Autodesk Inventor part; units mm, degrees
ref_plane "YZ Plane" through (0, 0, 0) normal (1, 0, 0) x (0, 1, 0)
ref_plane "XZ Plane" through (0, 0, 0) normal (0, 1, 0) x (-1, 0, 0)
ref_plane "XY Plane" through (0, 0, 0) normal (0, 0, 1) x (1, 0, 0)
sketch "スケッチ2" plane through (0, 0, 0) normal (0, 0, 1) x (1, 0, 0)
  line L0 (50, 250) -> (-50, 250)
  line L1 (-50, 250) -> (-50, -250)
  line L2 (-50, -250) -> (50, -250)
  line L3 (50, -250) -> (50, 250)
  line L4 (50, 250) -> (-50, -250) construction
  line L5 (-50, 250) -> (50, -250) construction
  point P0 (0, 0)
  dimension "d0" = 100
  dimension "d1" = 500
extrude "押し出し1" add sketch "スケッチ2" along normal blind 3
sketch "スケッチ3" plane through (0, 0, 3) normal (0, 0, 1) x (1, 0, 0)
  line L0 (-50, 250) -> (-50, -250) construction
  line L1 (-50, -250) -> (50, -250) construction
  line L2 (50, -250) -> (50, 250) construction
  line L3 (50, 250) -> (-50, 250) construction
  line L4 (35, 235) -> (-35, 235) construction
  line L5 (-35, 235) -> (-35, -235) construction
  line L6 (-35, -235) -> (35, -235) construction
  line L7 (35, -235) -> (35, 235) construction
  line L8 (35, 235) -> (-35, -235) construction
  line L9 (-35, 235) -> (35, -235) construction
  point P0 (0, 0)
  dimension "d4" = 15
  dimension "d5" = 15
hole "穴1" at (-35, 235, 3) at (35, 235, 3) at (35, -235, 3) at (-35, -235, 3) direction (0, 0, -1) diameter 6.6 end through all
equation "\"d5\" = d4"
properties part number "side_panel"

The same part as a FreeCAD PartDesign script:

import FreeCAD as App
import Part
import Sketcher
Q = App.Units.Quantity

doc = App.newDocument("Part")
body = doc.addObject("PartDesign::Body", "Body")

sketch1 = doc.addObject("Sketcher::SketchObject", "Sketch")
body.addObject(sketch1)
sketch1.AttachmentSupport = (doc.XY_Plane, [""])
sketch1.MapMode = "FlatFace"
sketch1.addGeometry(Part.LineSegment(App.Vector(50, -250, 0), App.Vector(50, 250, 0)), False)
sketch1.addGeometry(Part.LineSegment(App.Vector(50, 250, 0), App.Vector(-50, 250, 0)), False)
sketch1.addGeometry(Part.LineSegment(App.Vector(-50, 250, 0), App.Vector(-50, -250, 0)), False)
sketch1.addGeometry(Part.LineSegment(App.Vector(-50, -250, 0), App.Vector(50, -250, 0)), False)
sketch1.addConstraint(Sketcher.Constraint("Coincident", 0, 2, 1, 1))
sketch1.addConstraint(Sketcher.Constraint("Coincident", 1, 2, 2, 1))
sketch1.addConstraint(Sketcher.Constraint("Coincident", 2, 2, 3, 1))
sketch1.addConstraint(Sketcher.Constraint("Coincident", 3, 2, 0, 1))
sketch1.addConstraint(Sketcher.Constraint("Vertical", 0))
sketch1.addConstraint(Sketcher.Constraint("Horizontal", 1))
sketch1.addConstraint(Sketcher.Constraint("Vertical", 2))
sketch1.addConstraint(Sketcher.Constraint("Horizontal", 3))
sketch1.addConstraint(Sketcher.Constraint("Symmetric", 0, 2, 2, 2, -1, 1))
sketch1.addConstraint(Sketcher.Constraint("DistanceX", 1, 2, 1, 1, Q("100 mm")))
sketch1.addConstraint(Sketcher.Constraint("DistanceY", 0, 1, 0, 2, Q("500 mm")))
pad1 = doc.addObject("PartDesign::Pad", "Pad")
body.addObject(pad1)
pad1.Profile = sketch1
pad1.Length = 3

sketch2 = doc.addObject("Sketcher::SketchObject", "Sketch001")
body.addObject(sketch2)
sketch2.AttachmentSupport = (doc.XY_Plane, [""])
sketch2.MapMode = "FlatFace"
sketch2.AttachmentOffset = App.Placement(App.Vector(0, 0, 3), App.Rotation())
sketch2.addGeometry(Part.Circle(App.Vector(-35, 235, 0), App.Vector(0, 0, 1), 3.3), False)
sketch2.addGeometry(Part.Circle(App.Vector(35, 235, 0), App.Vector(0, 0, 1), 3.3), False)
sketch2.addGeometry(Part.Circle(App.Vector(35, -235, 0), App.Vector(0, 0, 1), 3.3), False)
sketch2.addGeometry(Part.Circle(App.Vector(-35, -235, 0), App.Vector(0, 0, 1), 3.3), False)
sketch2.addConstraint(Sketcher.Constraint("Equal", 0, 1))
sketch2.addConstraint(Sketcher.Constraint("Equal", 1, 2))
sketch2.addConstraint(Sketcher.Constraint("Equal", 2, 3))
sketch2.addConstraint(Sketcher.Constraint("Symmetric", 0, 3, 2, 3, -1, 1))
sketch2.addConstraint(Sketcher.Constraint("Symmetric", 1, 3, 3, 3, -1, 1))
sketch2.addConstraint(Sketcher.Constraint("Symmetric", 0, 3, 1, 3, -2))
sketch2.addConstraint(Sketcher.Constraint("Diameter", 0, Q("6.6 mm")))
sketch2.addConstraint(Sketcher.Constraint("DistanceX", 0, 3, -1, 1, Q("35 mm")))
sketch2.addConstraint(Sketcher.Constraint("DistanceY", -1, 1, 0, 3, Q("235 mm")))
doc.recompute()
hole = doc.addObject("PartDesign::Hole", "Hole")
body.addObject(hole)
hole.Profile = sketch2
hole.ThreadType = "None"
hole.Diameter = 6.6
hole.DepthType = "ThroughAll"

doc.recompute()
